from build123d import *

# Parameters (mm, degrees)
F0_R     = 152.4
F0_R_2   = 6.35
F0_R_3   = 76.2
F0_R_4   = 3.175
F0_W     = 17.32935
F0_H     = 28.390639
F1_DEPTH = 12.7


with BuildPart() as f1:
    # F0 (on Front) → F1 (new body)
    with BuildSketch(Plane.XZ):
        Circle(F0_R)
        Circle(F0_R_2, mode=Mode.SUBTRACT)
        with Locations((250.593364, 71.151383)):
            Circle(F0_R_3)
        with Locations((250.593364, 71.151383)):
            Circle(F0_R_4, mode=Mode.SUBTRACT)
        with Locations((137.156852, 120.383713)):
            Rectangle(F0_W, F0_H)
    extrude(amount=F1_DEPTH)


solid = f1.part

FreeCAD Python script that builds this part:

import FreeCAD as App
import Part
import Sketcher

V = App.Vector
Q = App.Units.Quantity


def add_polygon(sketch, points):
    """Adds a closed chain of lines whose ends are joined by coincident constraints."""
    first, n = sketch.GeometryCount, len(points)
    for a, b in zip(points, points[1:] + points[:1]):
        sketch.addGeometry(Part.LineSegment(App.Vector(*a, 0), App.Vector(*b, 0)), False)
    for i in range(n):
        sketch.addConstraint(Sketcher.Constraint("Coincident", first + i, 2, first + (i + 1) % n, 1))

doc = App.newDocument("Part")
body = doc.addObject("PartDesign::Body", "Body")
body.AllowCompound = True

# Sketch on XZ plane
sketch1 = body.newObject("Sketcher::SketchObject", "Sketch")
sketch1.AttachmentSupport = (doc.getObject("XZ_Plane"), [""])
sketch1.MapMode = "FlatFace"
sketch1.addGeometry(Part.Circle(V(0, 0, 0), V(0, 0, 1), 152.4), False)  # 0
sketch1.addGeometry(Part.Circle(V(0, 0, 0), V(0, 0, 1), 6.35), False)  # 1
sketch1.addGeometry(Part.Circle(V(250.593364, 71.151383, 0), V(0, 0, 1), 76.2), False)  # 2
sketch1.addGeometry(Part.Circle(V(250.593364, 71.151383, 0), V(0, 0, 1), 3.175), False)  # 3
add_polygon(sketch1, [(128.492177, 134.579033), (128.492177, 106.188394), (145.821527, 106.188394), (145.821527, 134.579033)])  # lines 4-7
sketch1.addConstraint(Sketcher.Constraint("Vertical", 4))
sketch1.addConstraint(Sketcher.Constraint("Horizontal", 5))
sketch1.addConstraint(Sketcher.Constraint("Vertical", 6))
sketch1.addConstraint(Sketcher.Constraint("Horizontal", 7))
sketch1.addConstraint(Sketcher.Constraint("Coincident", 0, 3, -1, 1))
sketch1.addConstraint(Sketcher.Constraint("Coincident", 1, 3, -1, 1))
sketch1.addConstraint(Sketcher.Constraint("Coincident", 3, 3, 2, 3))
sketch1.addConstraint(Sketcher.Constraint("Diameter", 0, Q("12 in")))
sketch1.addConstraint(Sketcher.Constraint("Diameter", 2, Q("6 in")))
sketch1.addConstraint(Sketcher.Constraint("Diameter", 1, Q("0.5 in")))
sketch1.addConstraint(Sketcher.Constraint("Diameter", 3, Q("0.25 in")))
sketch1.addConstraint(Sketcher.Constraint("DistanceX", 5, 1, 5, 2, Q("17.32935 mm")))
sketch1.addConstraint(Sketcher.Constraint("DistanceY", 4, 2, 4, 1, Q("28.390639 mm")))
sketch1.addConstraint(Sketcher.Constraint("DistanceY", 2, 3, 4, 2, Q("35.037011 mm")))
sketch1.addConstraint(Sketcher.Constraint("DistanceX", -1, 1, 2, 3, Q("250.593364 mm")))
sketch1.addConstraint(Sketcher.Constraint("DistanceY", -1, 1, 2, 3, Q("71.151383 mm")))
sketch1.addConstraint(Sketcher.Constraint("DistanceX", -1, 1, 4, 2, Q("128.492177 mm")))
pad1 = body.newObject("PartDesign::Pad", "Pad")
pad1.Profile = sketch1
pad1.Length = Q("0.5 in")

doc.recompute()
